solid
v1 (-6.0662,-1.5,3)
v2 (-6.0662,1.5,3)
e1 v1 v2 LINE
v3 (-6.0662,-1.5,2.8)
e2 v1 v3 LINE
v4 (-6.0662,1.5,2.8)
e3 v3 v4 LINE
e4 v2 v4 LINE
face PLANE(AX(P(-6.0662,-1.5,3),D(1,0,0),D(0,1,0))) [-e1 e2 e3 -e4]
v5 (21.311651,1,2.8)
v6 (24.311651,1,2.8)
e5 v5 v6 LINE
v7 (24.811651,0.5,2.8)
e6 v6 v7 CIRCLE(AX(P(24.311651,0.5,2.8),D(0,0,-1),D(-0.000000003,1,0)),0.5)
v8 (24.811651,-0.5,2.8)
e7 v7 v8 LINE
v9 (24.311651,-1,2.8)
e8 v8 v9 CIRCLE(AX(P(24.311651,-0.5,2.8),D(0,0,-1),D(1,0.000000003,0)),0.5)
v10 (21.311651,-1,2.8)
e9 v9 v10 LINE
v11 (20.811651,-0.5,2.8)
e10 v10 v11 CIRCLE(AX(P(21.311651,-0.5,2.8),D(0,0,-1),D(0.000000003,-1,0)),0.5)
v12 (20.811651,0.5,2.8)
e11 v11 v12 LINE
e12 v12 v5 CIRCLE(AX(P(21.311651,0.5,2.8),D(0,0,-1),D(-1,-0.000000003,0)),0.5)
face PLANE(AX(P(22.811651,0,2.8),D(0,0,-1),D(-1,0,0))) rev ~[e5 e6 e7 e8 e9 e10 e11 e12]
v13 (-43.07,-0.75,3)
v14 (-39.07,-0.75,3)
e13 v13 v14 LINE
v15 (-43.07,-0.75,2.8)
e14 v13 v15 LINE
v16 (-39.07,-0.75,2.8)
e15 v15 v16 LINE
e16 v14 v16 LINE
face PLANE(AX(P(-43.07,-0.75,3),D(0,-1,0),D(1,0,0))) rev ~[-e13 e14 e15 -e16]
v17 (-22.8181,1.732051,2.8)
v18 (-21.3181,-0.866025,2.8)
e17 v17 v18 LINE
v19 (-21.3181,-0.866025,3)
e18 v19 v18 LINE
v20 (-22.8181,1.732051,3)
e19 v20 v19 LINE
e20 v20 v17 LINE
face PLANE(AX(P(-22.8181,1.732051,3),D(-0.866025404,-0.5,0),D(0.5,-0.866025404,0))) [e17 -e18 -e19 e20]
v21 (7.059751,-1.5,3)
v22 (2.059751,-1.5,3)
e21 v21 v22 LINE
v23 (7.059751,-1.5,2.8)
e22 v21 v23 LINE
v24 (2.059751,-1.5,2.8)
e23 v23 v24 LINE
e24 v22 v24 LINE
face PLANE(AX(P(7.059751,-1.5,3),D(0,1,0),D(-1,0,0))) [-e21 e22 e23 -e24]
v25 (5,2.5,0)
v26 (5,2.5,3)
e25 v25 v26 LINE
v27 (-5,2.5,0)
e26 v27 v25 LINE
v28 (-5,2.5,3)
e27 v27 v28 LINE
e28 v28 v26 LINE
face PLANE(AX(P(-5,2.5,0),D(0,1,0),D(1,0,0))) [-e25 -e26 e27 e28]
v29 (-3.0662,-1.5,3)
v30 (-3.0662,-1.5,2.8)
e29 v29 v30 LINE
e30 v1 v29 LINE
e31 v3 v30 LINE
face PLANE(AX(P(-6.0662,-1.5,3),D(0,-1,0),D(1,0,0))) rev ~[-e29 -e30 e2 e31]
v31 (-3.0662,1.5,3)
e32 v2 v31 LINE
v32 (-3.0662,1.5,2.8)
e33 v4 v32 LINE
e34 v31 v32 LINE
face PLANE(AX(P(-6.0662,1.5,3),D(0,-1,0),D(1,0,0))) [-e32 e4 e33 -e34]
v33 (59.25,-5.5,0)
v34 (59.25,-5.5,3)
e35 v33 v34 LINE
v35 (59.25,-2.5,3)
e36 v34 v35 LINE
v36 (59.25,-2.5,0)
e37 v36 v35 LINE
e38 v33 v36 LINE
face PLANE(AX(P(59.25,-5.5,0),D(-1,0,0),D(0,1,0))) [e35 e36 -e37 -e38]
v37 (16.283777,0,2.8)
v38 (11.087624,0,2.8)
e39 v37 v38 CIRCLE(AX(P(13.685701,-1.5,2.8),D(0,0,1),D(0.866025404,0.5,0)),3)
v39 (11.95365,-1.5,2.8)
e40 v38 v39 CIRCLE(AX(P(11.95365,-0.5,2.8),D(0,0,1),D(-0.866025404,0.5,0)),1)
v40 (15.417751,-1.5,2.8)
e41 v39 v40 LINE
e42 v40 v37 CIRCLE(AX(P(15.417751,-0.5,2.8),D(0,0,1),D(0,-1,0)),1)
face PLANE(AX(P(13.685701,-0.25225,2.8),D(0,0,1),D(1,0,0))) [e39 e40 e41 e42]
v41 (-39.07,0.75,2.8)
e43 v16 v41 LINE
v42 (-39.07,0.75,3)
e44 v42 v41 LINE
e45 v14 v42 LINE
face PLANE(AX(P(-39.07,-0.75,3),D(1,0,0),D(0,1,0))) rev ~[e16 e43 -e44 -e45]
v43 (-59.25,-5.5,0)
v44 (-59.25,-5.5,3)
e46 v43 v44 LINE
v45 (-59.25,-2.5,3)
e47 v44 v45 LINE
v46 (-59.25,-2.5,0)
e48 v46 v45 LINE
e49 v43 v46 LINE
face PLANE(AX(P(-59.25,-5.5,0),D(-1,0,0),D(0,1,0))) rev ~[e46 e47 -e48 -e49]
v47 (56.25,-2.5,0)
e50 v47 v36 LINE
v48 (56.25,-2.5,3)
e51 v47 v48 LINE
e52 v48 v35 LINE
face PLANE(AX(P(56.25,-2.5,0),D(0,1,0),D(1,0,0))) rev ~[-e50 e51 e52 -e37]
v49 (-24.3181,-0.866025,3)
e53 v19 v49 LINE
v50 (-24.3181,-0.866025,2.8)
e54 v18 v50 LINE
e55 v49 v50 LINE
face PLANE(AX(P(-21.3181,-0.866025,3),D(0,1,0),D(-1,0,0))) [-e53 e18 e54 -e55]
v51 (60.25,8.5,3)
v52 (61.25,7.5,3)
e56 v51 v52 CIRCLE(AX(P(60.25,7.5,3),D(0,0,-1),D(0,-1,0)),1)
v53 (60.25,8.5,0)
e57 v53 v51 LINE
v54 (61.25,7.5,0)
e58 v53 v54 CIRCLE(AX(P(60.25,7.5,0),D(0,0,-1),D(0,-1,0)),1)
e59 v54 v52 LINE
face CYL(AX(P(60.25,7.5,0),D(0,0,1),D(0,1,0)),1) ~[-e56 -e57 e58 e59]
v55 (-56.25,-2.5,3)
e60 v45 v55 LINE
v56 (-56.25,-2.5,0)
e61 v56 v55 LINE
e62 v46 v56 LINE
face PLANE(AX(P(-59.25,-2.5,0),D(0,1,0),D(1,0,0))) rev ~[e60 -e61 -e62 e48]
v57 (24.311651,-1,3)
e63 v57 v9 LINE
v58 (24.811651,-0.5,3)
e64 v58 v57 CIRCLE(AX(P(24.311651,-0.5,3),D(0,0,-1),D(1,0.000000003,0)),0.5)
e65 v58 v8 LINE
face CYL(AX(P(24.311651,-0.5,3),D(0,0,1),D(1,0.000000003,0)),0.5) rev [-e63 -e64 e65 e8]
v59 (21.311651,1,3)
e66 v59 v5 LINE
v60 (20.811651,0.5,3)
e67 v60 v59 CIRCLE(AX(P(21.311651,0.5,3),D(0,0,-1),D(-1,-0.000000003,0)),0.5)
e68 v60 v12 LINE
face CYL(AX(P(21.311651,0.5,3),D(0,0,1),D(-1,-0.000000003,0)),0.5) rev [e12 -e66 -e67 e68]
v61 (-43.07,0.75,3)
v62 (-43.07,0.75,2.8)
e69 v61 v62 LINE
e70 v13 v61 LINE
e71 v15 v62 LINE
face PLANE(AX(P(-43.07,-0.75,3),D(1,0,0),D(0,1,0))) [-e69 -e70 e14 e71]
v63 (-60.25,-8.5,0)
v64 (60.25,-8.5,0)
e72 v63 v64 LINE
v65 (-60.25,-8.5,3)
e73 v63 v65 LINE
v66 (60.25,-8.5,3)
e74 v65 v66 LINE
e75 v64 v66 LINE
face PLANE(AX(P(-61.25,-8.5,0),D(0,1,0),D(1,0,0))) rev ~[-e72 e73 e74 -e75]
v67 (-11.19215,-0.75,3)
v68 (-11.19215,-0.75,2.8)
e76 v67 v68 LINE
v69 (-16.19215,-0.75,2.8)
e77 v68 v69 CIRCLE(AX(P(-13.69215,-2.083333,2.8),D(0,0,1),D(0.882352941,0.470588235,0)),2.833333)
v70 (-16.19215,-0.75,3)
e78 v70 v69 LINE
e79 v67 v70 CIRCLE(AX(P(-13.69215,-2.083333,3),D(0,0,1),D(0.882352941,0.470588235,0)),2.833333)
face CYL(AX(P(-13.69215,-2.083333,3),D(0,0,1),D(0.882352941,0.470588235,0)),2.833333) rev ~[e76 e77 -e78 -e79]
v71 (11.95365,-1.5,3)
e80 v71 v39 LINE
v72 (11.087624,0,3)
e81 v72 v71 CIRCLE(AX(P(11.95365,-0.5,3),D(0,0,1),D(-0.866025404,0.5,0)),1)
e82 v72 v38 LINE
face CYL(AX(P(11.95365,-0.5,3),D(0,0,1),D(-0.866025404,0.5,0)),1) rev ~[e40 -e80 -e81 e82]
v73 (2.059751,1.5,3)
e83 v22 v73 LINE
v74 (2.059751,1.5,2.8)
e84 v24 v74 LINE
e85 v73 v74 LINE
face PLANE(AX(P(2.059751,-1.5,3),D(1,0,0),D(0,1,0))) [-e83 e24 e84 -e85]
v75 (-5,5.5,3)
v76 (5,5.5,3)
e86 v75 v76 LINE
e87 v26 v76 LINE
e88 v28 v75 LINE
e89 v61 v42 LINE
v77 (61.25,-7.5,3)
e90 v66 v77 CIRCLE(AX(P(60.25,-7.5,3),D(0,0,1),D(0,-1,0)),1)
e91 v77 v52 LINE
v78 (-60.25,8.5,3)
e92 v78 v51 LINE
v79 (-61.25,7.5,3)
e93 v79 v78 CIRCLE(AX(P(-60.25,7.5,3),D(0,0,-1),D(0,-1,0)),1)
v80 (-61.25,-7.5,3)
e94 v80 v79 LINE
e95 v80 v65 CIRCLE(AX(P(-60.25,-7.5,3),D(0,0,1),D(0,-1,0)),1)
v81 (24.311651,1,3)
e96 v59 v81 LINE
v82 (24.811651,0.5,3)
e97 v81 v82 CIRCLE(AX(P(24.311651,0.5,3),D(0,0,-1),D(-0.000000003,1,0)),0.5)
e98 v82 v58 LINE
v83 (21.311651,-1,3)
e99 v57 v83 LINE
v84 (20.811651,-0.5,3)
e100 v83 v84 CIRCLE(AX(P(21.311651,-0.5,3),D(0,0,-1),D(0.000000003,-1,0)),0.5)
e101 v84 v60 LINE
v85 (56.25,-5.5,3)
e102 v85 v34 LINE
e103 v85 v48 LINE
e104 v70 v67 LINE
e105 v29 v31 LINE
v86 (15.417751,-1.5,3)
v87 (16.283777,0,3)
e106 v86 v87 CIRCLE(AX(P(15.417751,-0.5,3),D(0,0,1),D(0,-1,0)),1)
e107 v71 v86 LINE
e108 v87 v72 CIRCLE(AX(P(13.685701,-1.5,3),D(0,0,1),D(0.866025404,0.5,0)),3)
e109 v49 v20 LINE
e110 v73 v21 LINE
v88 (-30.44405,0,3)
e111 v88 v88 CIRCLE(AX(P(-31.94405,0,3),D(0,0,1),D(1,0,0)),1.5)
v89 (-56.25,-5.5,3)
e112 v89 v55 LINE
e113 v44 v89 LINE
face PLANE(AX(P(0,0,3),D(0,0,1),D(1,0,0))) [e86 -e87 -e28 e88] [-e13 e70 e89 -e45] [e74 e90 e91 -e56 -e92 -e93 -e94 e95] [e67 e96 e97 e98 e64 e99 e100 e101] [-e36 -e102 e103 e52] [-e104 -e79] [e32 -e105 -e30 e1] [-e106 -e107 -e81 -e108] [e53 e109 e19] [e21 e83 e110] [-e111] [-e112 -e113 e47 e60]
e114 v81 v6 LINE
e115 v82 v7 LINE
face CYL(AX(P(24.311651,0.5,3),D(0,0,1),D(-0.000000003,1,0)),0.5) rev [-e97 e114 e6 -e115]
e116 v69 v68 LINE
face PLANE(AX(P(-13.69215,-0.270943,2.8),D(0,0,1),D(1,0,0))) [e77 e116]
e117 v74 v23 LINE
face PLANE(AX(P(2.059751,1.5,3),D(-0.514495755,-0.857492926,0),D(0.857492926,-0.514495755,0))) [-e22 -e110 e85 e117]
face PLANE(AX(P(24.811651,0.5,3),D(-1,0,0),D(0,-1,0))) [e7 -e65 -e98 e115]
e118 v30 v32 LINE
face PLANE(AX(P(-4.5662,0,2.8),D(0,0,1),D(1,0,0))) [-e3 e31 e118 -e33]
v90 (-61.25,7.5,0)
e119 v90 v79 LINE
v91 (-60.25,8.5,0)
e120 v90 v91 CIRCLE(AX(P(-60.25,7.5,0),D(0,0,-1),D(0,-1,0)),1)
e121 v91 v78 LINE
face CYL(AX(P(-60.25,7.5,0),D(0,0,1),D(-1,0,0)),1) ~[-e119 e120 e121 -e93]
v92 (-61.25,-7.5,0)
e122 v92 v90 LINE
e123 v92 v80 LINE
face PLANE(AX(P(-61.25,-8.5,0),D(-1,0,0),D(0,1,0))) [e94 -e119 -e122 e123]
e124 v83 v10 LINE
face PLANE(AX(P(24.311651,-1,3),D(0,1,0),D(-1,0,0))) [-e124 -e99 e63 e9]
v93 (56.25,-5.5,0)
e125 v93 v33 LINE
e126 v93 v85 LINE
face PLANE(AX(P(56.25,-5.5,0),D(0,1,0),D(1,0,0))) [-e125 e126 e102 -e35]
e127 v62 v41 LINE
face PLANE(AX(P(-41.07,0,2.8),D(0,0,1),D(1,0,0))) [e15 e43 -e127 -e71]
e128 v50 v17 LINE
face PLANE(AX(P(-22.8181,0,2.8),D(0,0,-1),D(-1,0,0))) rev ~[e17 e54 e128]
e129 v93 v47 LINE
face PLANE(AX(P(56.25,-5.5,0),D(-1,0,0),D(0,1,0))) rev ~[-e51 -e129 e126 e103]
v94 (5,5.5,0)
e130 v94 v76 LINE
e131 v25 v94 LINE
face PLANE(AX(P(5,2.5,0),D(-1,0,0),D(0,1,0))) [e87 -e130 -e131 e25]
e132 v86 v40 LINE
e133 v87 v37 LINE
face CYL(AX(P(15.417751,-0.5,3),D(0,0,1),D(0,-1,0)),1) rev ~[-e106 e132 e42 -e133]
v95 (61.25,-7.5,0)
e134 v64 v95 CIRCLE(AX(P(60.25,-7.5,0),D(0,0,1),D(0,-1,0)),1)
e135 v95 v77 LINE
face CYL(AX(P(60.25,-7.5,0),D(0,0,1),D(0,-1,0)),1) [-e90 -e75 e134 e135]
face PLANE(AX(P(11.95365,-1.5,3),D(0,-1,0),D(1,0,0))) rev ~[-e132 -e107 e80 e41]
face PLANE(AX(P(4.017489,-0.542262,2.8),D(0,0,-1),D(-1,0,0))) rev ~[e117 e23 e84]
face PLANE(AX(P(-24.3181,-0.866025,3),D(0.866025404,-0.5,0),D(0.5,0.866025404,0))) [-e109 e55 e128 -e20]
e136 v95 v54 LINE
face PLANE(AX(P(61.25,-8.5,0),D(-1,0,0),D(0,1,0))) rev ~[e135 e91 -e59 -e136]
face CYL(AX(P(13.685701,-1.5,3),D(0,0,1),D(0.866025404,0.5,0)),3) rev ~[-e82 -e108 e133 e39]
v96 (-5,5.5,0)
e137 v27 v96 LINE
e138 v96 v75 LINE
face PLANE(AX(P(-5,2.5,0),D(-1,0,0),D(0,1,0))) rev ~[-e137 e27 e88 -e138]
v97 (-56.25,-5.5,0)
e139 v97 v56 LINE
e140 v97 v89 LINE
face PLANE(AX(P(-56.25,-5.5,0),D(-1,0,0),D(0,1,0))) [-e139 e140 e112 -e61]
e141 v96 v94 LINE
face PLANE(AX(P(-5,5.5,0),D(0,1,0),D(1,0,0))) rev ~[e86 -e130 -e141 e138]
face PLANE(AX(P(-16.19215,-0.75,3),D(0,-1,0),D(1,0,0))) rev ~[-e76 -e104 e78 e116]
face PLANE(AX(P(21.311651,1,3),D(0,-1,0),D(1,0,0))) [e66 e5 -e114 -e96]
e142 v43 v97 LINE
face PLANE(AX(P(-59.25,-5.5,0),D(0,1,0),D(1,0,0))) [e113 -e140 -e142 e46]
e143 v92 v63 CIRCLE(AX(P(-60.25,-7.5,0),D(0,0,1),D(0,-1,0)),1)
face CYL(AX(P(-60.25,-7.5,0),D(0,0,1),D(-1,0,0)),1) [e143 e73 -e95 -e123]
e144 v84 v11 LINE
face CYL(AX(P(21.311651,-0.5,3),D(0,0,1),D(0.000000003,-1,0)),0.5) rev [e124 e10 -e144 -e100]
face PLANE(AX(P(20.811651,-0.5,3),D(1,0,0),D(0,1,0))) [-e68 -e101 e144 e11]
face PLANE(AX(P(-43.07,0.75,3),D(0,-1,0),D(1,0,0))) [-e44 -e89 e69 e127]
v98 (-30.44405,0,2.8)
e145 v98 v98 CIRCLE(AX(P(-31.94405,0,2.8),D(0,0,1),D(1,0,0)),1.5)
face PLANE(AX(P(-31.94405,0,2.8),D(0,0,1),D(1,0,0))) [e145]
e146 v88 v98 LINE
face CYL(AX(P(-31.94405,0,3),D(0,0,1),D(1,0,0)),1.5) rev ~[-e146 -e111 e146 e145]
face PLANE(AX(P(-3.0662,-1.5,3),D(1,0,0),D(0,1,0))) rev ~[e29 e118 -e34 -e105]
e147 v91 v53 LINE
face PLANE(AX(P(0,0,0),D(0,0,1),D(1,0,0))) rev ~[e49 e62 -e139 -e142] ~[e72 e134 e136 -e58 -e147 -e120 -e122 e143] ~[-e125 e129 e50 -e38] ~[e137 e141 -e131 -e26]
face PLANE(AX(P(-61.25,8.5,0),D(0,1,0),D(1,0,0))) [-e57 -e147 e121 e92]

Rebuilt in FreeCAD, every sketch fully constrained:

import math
import FreeCAD as App
import Part
import Sketcher

V = App.Vector
Q = App.Units.Quantity


def edges_at(feature, points):
    """Names of the edges that pass closest to the given points."""
    edges = feature.Shape.Edges
    near = lambda p: min(range(len(edges)), key=lambda i: edges[i].distToShape(Part.Vertex(*p))[0])
    return sorted({f"Edge{near(p) + 1}" for p in points})


def add_polygon(sketch, points):
    """Adds a closed chain of lines whose ends are joined by coincident constraints."""
    first, n = sketch.GeometryCount, len(points)
    for a, b in zip(points, points[1:] + points[:1]):
        sketch.addGeometry(Part.LineSegment(App.Vector(*a, 0), App.Vector(*b, 0)), False)
    for i in range(n):
        sketch.addConstraint(Sketcher.Constraint("Coincident", first + i, 2, first + (i + 1) % n, 1))

doc = App.newDocument("Part")
body = doc.addObject("PartDesign::Body", "Body")

# Sketch on XY plane
sketch1 = body.newObject("Sketcher::SketchObject", "Sketch")
sketch1.AttachmentSupport = (doc.getObject("XY_Plane"), [""])
sketch1.MapMode = "FlatFace"
add_polygon(sketch1, [(-61.2, 8.5), (-61.2, -8.5), (61.2, -8.5), (61.2, 8.5)])  # lines 0-3
add_polygon(sketch1, [(-56.2, -5.5), (-59.2, -5.5), (-59.2, -2.5), (-56.2, -2.5)])  # lines 4-7
add_polygon(sketch1, [(59.2, -5.5), (56.2, -5.5), (56.2, -2.5), (59.2, -2.5)])  # lines 8-11
add_polygon(sketch1, [(5, 2.5), (-5, 2.5), (-5, 5.5), (5, 5.5)])  # lines 12-15
sketch1.addConstraint([
    Sketcher.Constraint("Vertical", 0),
    Sketcher.Constraint("Horizontal", 1),
    Sketcher.Constraint("Vertical", 2),
    Sketcher.Constraint("Horizontal", 3),
    Sketcher.Constraint("Horizontal", 4),
    Sketcher.Constraint("Vertical", 5),
    Sketcher.Constraint("Horizontal", 6),
    Sketcher.Constraint("Vertical", 7),
    Sketcher.Constraint("Horizontal", 8),
    Sketcher.Constraint("Vertical", 9),
    Sketcher.Constraint("Horizontal", 10),
    Sketcher.Constraint("Vertical", 11),
    Sketcher.Constraint("Horizontal", 12),
    Sketcher.Constraint("Vertical", 13),
    Sketcher.Constraint("Horizontal", 14),
    Sketcher.Constraint("Vertical", 15),
    Sketcher.Constraint("Symmetric", 0, 2, 2, 2, -1, 1),
    Sketcher.Constraint("Symmetric", 7, 2, 8, 2, -2),
    Sketcher.Constraint("Symmetric", 5, 2, 10, 2, -2),
    Sketcher.Constraint("Equal", 10, 5),
    Sketcher.Constraint("Equal", 11, 13),
    Sketcher.Constraint("DistanceX", 4, 2, 4, 1, 3.0),
    Sketcher.Constraint("DistanceX", 12, 2, 12, 1, 10.0),
    Sketcher.Constraint("DistanceY", 0, 2, 0, 1, 17.0),
    Sketcher.Constraint("DistanceX", 1, 1, 1, 2, 122.5),
    Sketcher.Constraint("DistanceX", 12, 2, -1, 1, 5.0),
    Sketcher.Constraint("DistanceX", 0, 2, 4, 2, 2.0),
    Sketcher.Constraint("DistanceY", 0, 2, 4, 2, 3.0),
    Sketcher.Constraint("DistanceY", 6, 2, 12, 2, 5.0),
])
pad1 = body.newObject("PartDesign::Pad", "Pad")
pad1.Profile = sketch1
pad1.Length = 3
doc.recompute()

fillet = body.newObject("PartDesign::Fillet", "Fillet")
fillet.Base = (pad1, edges_at(pad1, [
    (61.25, -8.5, 1.5),
    (-61.25, -8.5, 1.5),
    (-61.25, 8.5, 1.5),
    (61.25, 8.5, 1.5),
]))
fillet.Radius = 1

# Sketch on XY plane
sketch2 = body.newObject("Sketcher::SketchObject", "Sketch001")
sketch2.AttachmentSupport = (doc.getObject("XY_Plane"), [""])
sketch2.MapMode = "FlatFace"
sketch2.AttachmentOffset = App.Placement(V(0, 0, 3), App.Rotation())
sketch2.addGeometry(Part.Circle(V(-31.94, 0, 0), V(0, 0, 1), 1.5), False)  # 0
add_polygon(sketch2, [(-21.32, -0.87), (-22.82, 1.73), (-24.32, -0.87)])  # lines 1-3
add_polygon(sketch2, [(-43.07, 0.75), (-43.07, -0.75), (-39.07, -0.75), (-39.07, 0.75)])  # lines 4-7
sketch2.addGeometry(Part.LineSegment(V(-16.19, -0.75, 0), V(-11.19, -0.75, 0)), False)  # 8
sketch2.addGeometry(Part.ArcOfCircle(Part.Circle(V(-13.69, -2.08, 0), V(0, 0, 1), 2.83), math.radians(28), math.radians(152)), False)  # 9
add_polygon(sketch2, [(-6.07, 1.5), (-6.07, -1.5), (-3.07, -1.5), (-3.07, 1.5)])  # lines 10-13
add_polygon(sketch2, [(2.06, 1.5), (2.06, -1.5), (7.06, -1.5)])  # lines 14-16
sketch2.addGeometry(Part.LineSegment(V(11.95, -1.5, 0), V(15.42, -1.5, 0)), False)  # 17
sketch2.addGeometry(Part.ArcOfCircle(Part.Circle(V(15.42, -0.5, 0), V(0, 0, 1), 1), math.radians(-90), math.radians(30)), False)  # 18
sketch2.addGeometry(Part.ArcOfCircle(Part.Circle(V(13.69, -1.5, 0), V(0, 0, 1), 3), math.radians(30), math.radians(150)), False)  # 19
sketch2.addGeometry(Part.ArcOfCircle(Part.Circle(V(11.95, -0.5, 0), V(0, 0, 1), 1), math.radians(150), math.radians(270)), False)  # 20
sketch2.addGeometry(Part.LineSegment(V(24.31, 1, 0), V(21.31, 1, 0)), False)  # 21
sketch2.addGeometry(Part.ArcOfCircle(Part.Circle(V(21.31, 0.5, 0), V(0, 0, 1), 0.5), math.radians(90), math.radians(180)), False)  # 22
sketch2.addGeometry(Part.LineSegment(V(20.81, 0.5, 0), V(20.81, -0.5, 0)), False)  # 23
sketch2.addGeometry(Part.ArcOfCircle(Part.Circle(V(21.31, -0.5, 0), V(0, 0, 1), 0.5), math.radians(180), math.radians(270)), False)  # 24
sketch2.addGeometry(Part.LineSegment(V(21.31, -1, 0), V(24.31, -1, 0)), False)  # 25
sketch2.addGeometry(Part.ArcOfCircle(Part.Circle(V(24.31, -0.5, 0), V(0, 0, 1), 0.5), math.radians(-90), math.radians(0)), False)  # 26
sketch2.addGeometry(Part.LineSegment(V(24.81, -0.5, 0), V(24.81, 0.5, 0)), False)  # 27
sketch2.addGeometry(Part.ArcOfCircle(Part.Circle(V(24.31, 0.5, 0), V(0, 0, 1), 0.5), math.radians(0), math.radians(90)), False)  # 28
sketch2.addConstraint([
    Sketcher.Constraint("Coincident", 8, 1, 9, 2),
    Sketcher.Constraint("Coincident", 9, 1, 8, 2),
    Sketcher.Constraint("Tangent", 17, 2, 18, 1),
    Sketcher.Constraint("Tangent", 18, 2, 19, 1),
    Sketcher.Constraint("Tangent", 19, 2, 20, 1),
    Sketcher.Constraint("Tangent", 20, 2, 17, 1),
    Sketcher.Constraint("Tangent", 21, 2, 22, 1),
    Sketcher.Constraint("Tangent", 22, 2, 23, 1),
    Sketcher.Constraint("Tangent", 23, 2, 24, 1),
    Sketcher.Constraint("Tangent", 24, 2, 25, 1),
    Sketcher.Constraint("Tangent", 25, 2, 26, 1),
    Sketcher.Constraint("Tangent", 26, 2, 27, 1),
    Sketcher.Constraint("Tangent", 27, 2, 28, 1),
    Sketcher.Constraint("Tangent", 28, 2, 21, 1),
    Sketcher.Constraint("Horizontal", 3),
    Sketcher.Constraint("Vertical", 4),
    Sketcher.Constraint("Horizontal", 5),
    Sketcher.Constraint("Vertical", 6),
    Sketcher.Constraint("Horizontal", 7),
    Sketcher.Constraint("Horizontal", 8),
    Sketcher.Constraint("Vertical", 10),
    Sketcher.Constraint("Horizontal", 11),
    Sketcher.Constraint("Vertical", 12),
    Sketcher.Constraint("Horizontal", 13),
    Sketcher.Constraint("Vertical", 14),
    Sketcher.Constraint("Horizontal", 15),
    Sketcher.Constraint("Horizontal", 17),
    Sketcher.Constraint("Horizontal", 21),
    Sketcher.Constraint("Vertical", 23),
    Sketcher.Constraint("Horizontal", 25),
    Sketcher.Constraint("Vertical", 27),
    Sketcher.Constraint("Equal", 18, 20),
    Sketcher.Constraint("Equal", 22, 24),
    Sketcher.Constraint("Equal", 24, 26),
    Sketcher.Constraint("Equal", 26, 28),
    Sketcher.Constraint("PointOnObject", 0, 3, -1),
    Sketcher.Constraint("PointOnObject", 18, 2, -1),
    Sketcher.Constraint("Horizontal", 20, 3, 24, 3),
    Sketcher.Constraint("Horizontal", 5, 2, 8, 1),
    Sketcher.Constraint("Horizontal", 19, 3, 10, 2),
    Sketcher.Constraint("Horizontal", 11, 2, 14, 2),
    Sketcher.Constraint("Horizontal", 13, 2, 16, 2),
    Sketcher.Constraint("Horizontal", 15, 2, 17, 2),
    Sketcher.Constraint("Equal", 3, 11),
    Sketcher.Constraint("Equal", 8, 15),
    Sketcher.Constraint("Equal", 13, 21),
    Sketcher.Constraint("Equal", 25, 10),
    Sketcher.Constraint("Equal", 1, 2),
    Sketcher.Constraint("Diameter", 0, 3.0),
    Sketcher.Constraint("Radius", 18, 1.0),
    Sketcher.Constraint("Radius", 19, 3.0),
    Sketcher.Constraint("Radius", 22, 0.5),
    Sketcher.Constraint("DistanceX", 3, 1, 3, 2, 3.0),
    Sketcher.Constraint("DistanceX", 5, 1, 5, 2, 4.0),
    Sketcher.Constraint("DistanceX", 8, 1, 8, 2, 5.0),
    Sketcher.Constraint("DistanceY", 23, 2, 23, 1, 1.0),
    Sketcher.Constraint("Angle", 1, Q("120 deg")),
    Sketcher.Constraint("DistanceY", 4, 2, 4, 1, 1.5),
    Sketcher.Constraint("DistanceX", 4, 2, -1, 1, 43.07),
    Sketcher.Constraint("DistanceY", 4, 2, -1, 1, 0.75),
    Sketcher.Constraint("Radius", 9, 2.833333),
    Sketcher.Constraint("DistanceX", 20, 3, 22, 3, 9.358001),
    Sketcher.Constraint("DistanceX", 15, 2, 18, 3, 8.358001),
    Sketcher.Constraint("DistanceX", -1, 1, 19, 3, 13.685701),
    Sketcher.Constraint("DistanceX", 1, 2, -1, 1, 22.8181),
    Sketcher.Constraint("DistanceX", 10, 2, -1, 1, 6.0662),
    Sketcher.Constraint("DistanceX", 0, 3, 9, 3, 18.2519),
    Sketcher.Constraint("DistanceX", 9, 3, 18, 3, 29.109901),
    Sketcher.Constraint("DistanceY", -1, 1, 1, 2, 1.732051),
])
pocket1 = body.newObject("PartDesign::Pocket", "Pocket")
pocket1.Profile = sketch2
pocket1.Length = 0.2

doc.recompute()
